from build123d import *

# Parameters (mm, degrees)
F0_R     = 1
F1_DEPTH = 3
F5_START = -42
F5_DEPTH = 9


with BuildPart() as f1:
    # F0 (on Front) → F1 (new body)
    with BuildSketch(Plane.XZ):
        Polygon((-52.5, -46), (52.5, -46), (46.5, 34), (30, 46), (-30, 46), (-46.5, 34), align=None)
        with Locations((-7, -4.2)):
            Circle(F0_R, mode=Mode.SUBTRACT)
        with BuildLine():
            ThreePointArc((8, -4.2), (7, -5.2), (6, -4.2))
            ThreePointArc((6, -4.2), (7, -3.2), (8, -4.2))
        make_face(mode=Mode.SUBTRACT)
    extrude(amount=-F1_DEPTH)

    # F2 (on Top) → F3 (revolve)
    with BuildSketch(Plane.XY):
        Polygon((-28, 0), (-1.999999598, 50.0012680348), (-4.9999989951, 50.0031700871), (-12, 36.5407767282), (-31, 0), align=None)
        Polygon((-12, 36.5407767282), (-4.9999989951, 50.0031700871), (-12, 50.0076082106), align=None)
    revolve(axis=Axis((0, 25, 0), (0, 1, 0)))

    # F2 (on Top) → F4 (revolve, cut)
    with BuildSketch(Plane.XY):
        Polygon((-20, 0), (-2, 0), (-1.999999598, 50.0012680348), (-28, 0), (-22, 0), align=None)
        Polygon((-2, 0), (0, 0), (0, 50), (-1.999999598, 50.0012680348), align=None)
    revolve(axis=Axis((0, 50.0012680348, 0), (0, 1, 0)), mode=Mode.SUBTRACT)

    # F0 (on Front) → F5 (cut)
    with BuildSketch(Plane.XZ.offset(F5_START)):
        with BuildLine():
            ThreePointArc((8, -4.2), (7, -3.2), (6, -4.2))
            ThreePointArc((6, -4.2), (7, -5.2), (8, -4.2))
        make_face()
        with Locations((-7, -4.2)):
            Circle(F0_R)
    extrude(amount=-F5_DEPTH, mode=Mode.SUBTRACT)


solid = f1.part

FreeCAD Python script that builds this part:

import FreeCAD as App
import Part
import Sketcher
Q = App.Units.Quantity


def add_polygon(sketch, points):
    """Adds a closed chain of lines whose ends are joined by coincident constraints."""
    first, n = sketch.GeometryCount, len(points)
    for a, b in zip(points, points[1:] + points[:1]):
        sketch.addGeometry(Part.LineSegment(App.Vector(*a, 0), App.Vector(*b, 0)), False)
    for i in range(n):
        sketch.addConstraint(Sketcher.Constraint("Coincident", first + i, 2, first + (i + 1) % n, 1))

doc = App.newDocument("Part")
body = doc.addObject("PartDesign::Body", "Body")

sketch1 = body.newObject("Sketcher::SketchObject", "Sketch")
sketch1.AttachmentSupport = (doc.getObject("XZ_Plane"), [""])
sketch1.MapMode = "FlatFace"
add_polygon(sketch1, [(-52.5, -46), (52.5, -46), (46.5, 34), (30, 46), (-30, 46), (-46.5, 34)])
sketch1.addGeometry(Part.Circle(App.Vector(-7, -4.2, 0), App.Vector(0, 0, 1), 1), False)
sketch1.addGeometry(Part.Circle(App.Vector(7, -4.2, 0), App.Vector(0, 0, 1), 1), False)
sketch1.addConstraint([
    Sketcher.Constraint("Horizontal", 0),
    Sketcher.Constraint("Horizontal", 3),
    Sketcher.Constraint("Equal", 6, 7),
    Sketcher.Constraint("Symmetric", 6, 3, 7, 3, -2),
    Sketcher.Constraint("Symmetric", 1, 2, 4, 2, -2),
    Sketcher.Constraint("Equal", 2, 4),
    Sketcher.Constraint("Equal", 1, 5),
    Sketcher.Constraint("Diameter", 6, Q("2 mm")),
    Sketcher.Constraint("DistanceX", 0, 1, 0, 2, Q("105 mm")),
    Sketcher.Constraint("DistanceX", 3, 2, 3, 1, Q("60 mm")),
    Sketcher.Constraint("DistanceX", 6, 3, -1, 1, Q("7 mm")),
    Sketcher.Constraint("DistanceY", 0, 2, -1, 1, Q("46 mm")),
    Sketcher.Constraint("DistanceY", -1, 1, 1, 2, Q("34 mm")),
    Sketcher.Constraint("DistanceY", -1, 1, 2, 2, Q("46 mm")),
    Sketcher.Constraint("DistanceX", 1, 2, 0, 2, Q("6 mm")),
    Sketcher.Constraint("DistanceY", 6, 3, -1, 1, Q("4.2 mm")),
])
pad1 = body.newObject("PartDesign::Pad", "Pad")
pad1.Profile = sketch1
pad1.Length = 3
pad1.Reversed = True

sketch2 = body.newObject("Sketcher::SketchObject", "Sketch001")
sketch2.AttachmentSupport = (doc.getObject("XY_Plane"), [""])
sketch2.MapMode = "FlatFace"
add_polygon(sketch2, [(-28, 0), (-2, 50), (-5, 50), (-12, 50), (-12, 36.5), (-31, 0)])
sketch2.addConstraint([
    Sketcher.Constraint("Vertical", 3),
    Sketcher.Constraint("Horizontal", 5),
    Sketcher.Constraint("PointOnObject", 4, 2, -1),
    Sketcher.Constraint("Parallel", 1, 2),
    Sketcher.Constraint("DistanceX", 5, 1, 5, 2, Q("3 mm")),
    Sketcher.Constraint("Distance", 1, Q("3 mm")),
    Sketcher.Constraint("DistanceX", 0, 2, -1, 1, Q("2 mm")),
    Sketcher.Constraint("DistanceX", 2, 2, -1, 1, Q("12 mm")),
    Sketcher.Constraint("DistanceX", 4, 2, -1, 1, Q("31 mm")),
    Sketcher.Constraint("DistanceY", 3, 2, 3, 1, Q("13.466831 mm")),
    Sketcher.Constraint("DistanceY", -1, 1, 0, 2, Q("50.001268 mm")),
    Sketcher.Constraint("DistanceY", -1, 1, 1, 2, Q("50.00317 mm")),
])
revolution = body.newObject("PartDesign::Revolution", "Revolution")
revolution.Profile = sketch2
revolution.ReferenceAxis = (sketch2, ["V_Axis"])
revolution.Angle = 360

sketch3 = body.newObject("Sketcher::SketchObject", "Sketch002")
sketch3.AttachmentSupport = (doc.getObject("XY_Plane"), [""])
sketch3.MapMode = "FlatFace"
add_polygon(sketch3, [(-2, 50), (-28, 0), (0, 0), (0, 50)])
sketch3.addConstraint([
    Sketcher.Constraint("Horizontal", 1),
    Sketcher.Constraint("Vertical", 2),
    Sketcher.Constraint("Coincident", 1, 2, -1, 1),
    Sketcher.Constraint("DistanceX", 1, 1, 1, 2, Q("28 mm")),
    Sketcher.Constraint("DistanceY", 2, 1, 2, 2, Q("50 mm")),
    Sketcher.Constraint("Distance", 3, Q("2 mm")),
    Sketcher.Constraint("DistanceY", -1, 1, 3, 2, Q("50.001268 mm")),
])
groove = body.newObject("PartDesign::Groove", "Groove")
groove.Profile = sketch3
groove.ReferenceAxis = (sketch3, ["V_Axis"])
groove.Angle = 360

sketch4 = body.newObject("Sketcher::SketchObject", "Sketch003")
sketch4.AttachmentSupport = (doc.getObject("XZ_Plane"), [""])
sketch4.MapMode = "FlatFace"
sketch4.AttachmentOffset = App.Placement(App.Vector(0, 0, -42), App.Rotation())
sketch4.addGeometry([
    Part.Circle(App.Vector(7, -4.2, 0), App.Vector(0, 0, 1), 1),
    Part.Circle(App.Vector(-7, -4.2, 0), App.Vector(0, 0, 1), 1),
], False)
sketch4.addConstraint([
    Sketcher.Constraint("Equal", 0, 1),
    Sketcher.Constraint("Symmetric", 0, 3, 1, 3, -2),
    Sketcher.Constraint("Diameter", 0, Q("2 mm")),
    Sketcher.Constraint("DistanceX", -1, 1, 0, 3, Q("7 mm")),
    Sketcher.Constraint("DistanceY", 0, 3, -1, 1, Q("4.2 mm")),
])
pocket1 = body.newObject("PartDesign::Pocket", "Pocket")
pocket1.Profile = sketch4
pocket1.Length = 9

doc.recompute()
